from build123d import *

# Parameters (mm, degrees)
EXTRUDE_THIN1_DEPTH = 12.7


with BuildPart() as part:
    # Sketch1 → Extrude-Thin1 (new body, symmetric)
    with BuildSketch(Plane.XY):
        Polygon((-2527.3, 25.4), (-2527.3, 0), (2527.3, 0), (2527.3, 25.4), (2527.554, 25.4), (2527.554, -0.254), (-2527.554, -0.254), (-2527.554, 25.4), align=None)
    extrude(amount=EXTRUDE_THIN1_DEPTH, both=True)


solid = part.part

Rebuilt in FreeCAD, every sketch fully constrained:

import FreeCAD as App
import Part
import Sketcher
from FreeCAD import Vector
Q = App.Units.Quantity


def add_polygon(sketch, points):
    """Adds a closed chain of lines whose ends are joined by coincident constraints."""
    first, n = sketch.GeometryCount, len(points)
    for a, b in zip(points, points[1:] + points[:1]):
        sketch.addGeometry(Part.LineSegment(App.Vector(*a, 0), App.Vector(*b, 0)), False)
    for i in range(n):
        sketch.addConstraint(Sketcher.Constraint("Coincident", first + i, 2, first + (i + 1) % n, 1))

doc = App.newDocument("Part")
params = doc.addObject("Spreadsheet::Sheet", "Params")
for row, (alias, value) in enumerate([
    ("sketch1_width", "199 in"),
    ("sketch1_height", "1 in"),
    ("sketch1_width2", "0.01 in"),
    ("sketch1_height2", "1.01 in"),
    ("pad1_length", "1 in"),
], start=1):
    params.set(f"A{row}", alias)
    params.set(f"B{row}", "=" + value)
    params.setAlias(f"B{row}", alias)

body = doc.addObject("PartDesign::Body", "Body")

# Sketch on XY plane
sketch1 = body.newObject("Sketcher::SketchObject", "Sketch")
sketch1.AttachmentSupport = (doc.getObject("XY_Plane"), [""])
sketch1.MapMode = "FlatFace"
add_polygon(sketch1, [(-2527.3, 0), (-2527.3, 25.4), (-2527.554, 25.4), (-2527.554, -0.254), (2527.554, -0.254), (2527.554, 25.4), (2527.3, 25.4), (2527.3, 0)])  # lines 0-7
sketch1.addConstraint([
    Sketcher.Constraint("Vertical", 0),
    Sketcher.Constraint("Horizontal", 1),
    Sketcher.Constraint("Vertical", 2),
    Sketcher.Constraint("Horizontal", 3),
    Sketcher.Constraint("Vertical", 4),
    Sketcher.Constraint("Horizontal", 5),
    Sketcher.Constraint("Vertical", 6),
    Sketcher.Constraint("Horizontal", 7),
    Sketcher.Constraint("Symmetric", 6, 2, 7, 2, -1, 1),
    Sketcher.Constraint("Symmetric", 1, 2, 4, 2, -2),
    Sketcher.Constraint("DistanceX", 7, 2, 7, 1, Q("199 in")),
    Sketcher.Constraint("DistanceY", 0, 1, 0, 2, Q("1 in")),
    Sketcher.Constraint("DistanceX", 1, 2, 1, 1, Q("0.01 in")),
    Sketcher.Constraint("DistanceY", 2, 2, 2, 1, Q("1.01 in")),
])
sketch1.setExpression("Constraints[18]", "Params.sketch1_width")
sketch1.setExpression("Constraints[19]", "Params.sketch1_height")
sketch1.setExpression("Constraints[20]", "Params.sketch1_width2")
sketch1.setExpression("Constraints[21]", "Params.sketch1_height2")
pad1 = body.newObject("PartDesign::Pad", "Pad")
pad1.Profile = sketch1
pad1.setExpression("Length", "Params.pad1_length")
pad1.Midplane = True

doc.recompute()
